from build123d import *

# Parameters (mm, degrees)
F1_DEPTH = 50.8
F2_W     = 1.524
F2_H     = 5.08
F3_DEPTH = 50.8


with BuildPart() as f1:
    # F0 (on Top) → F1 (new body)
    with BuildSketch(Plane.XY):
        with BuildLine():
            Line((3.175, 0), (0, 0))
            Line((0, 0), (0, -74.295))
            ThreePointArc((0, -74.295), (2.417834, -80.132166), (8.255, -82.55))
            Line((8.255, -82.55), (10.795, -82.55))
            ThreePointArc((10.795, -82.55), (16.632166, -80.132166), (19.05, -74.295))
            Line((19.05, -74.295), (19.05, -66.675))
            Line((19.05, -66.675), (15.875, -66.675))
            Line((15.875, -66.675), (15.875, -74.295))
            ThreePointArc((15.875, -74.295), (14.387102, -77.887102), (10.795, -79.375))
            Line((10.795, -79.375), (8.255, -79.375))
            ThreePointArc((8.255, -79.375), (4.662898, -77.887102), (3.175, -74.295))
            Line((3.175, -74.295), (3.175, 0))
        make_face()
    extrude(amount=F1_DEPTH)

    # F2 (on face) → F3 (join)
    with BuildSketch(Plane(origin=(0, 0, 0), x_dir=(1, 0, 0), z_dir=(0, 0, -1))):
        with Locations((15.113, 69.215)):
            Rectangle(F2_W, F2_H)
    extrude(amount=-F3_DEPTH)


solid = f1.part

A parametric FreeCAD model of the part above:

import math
import FreeCAD as App
import Part
import Sketcher

V = App.Vector
Q = App.Units.Quantity

doc = App.newDocument("Part")
body = doc.addObject("PartDesign::Body", "Body")

# Sketch on XY plane
sketch1 = body.newObject("Sketcher::SketchObject", "Sketch")
sketch1.AttachmentSupport = (doc.getObject("XY_Plane"), [""])
sketch1.MapMode = "FlatFace"
sketch1.addGeometry([
    Part.LineSegment(V(3.175, 0, 0), V(0, 0, 0)),  # 0
    Part.LineSegment(V(0, 0, 0), V(0, -74.295, 0)),  # 1
    Part.ArcOfCircle(Part.Circle(V(8.255002, -74.294998, 0), V(0, 0, 1), 8.255002), math.radians(-179.999989), math.radians(-90.000011)),  # 2
    Part.LineSegment(V(8.255, -82.55, 0), V(10.795, -82.55, 0)),  # 3
    Part.ArcOfCircle(Part.Circle(V(10.794998, -74.294998, 0), V(0, 0, 1), 8.255002), math.radians(-89.999989), math.radians(-0.000011)),  # 4
    Part.LineSegment(V(19.05, -74.295, 0), V(19.05, -66.675, 0)),  # 5
    Part.LineSegment(V(19.05, -66.675, 0), V(15.875, -66.675, 0)),  # 6
    Part.LineSegment(V(15.875, -66.675, 0), V(15.875, -74.295, 0)),  # 7
    Part.ArcOfCircle(Part.Circle(V(10.794998, -74.294998, 0), V(0, 0, 1), 5.080002), math.radians(-89.999983), math.radians(-0.000017)),  # 8
    Part.LineSegment(V(10.795, -79.375, 0), V(8.255, -79.375, 0)),  # 9
    Part.ArcOfCircle(Part.Circle(V(8.255002, -74.294998, 0), V(0, 0, 1), 5.080002), math.radians(-179.999983), math.radians(-90.000017)),  # 10
    Part.LineSegment(V(3.175, -74.295, 0), V(3.175, 0, 0)),  # 11
], False)
sketch1.addConstraint([
    Sketcher.Constraint("Coincident", 0, 2, 1, 1),
    Sketcher.Constraint("Tangent", 1, 2, 2, 1),
    Sketcher.Constraint("Tangent", 2, 2, 3, 1),
    Sketcher.Constraint("Tangent", 3, 2, 4, 1),
    Sketcher.Constraint("Tangent", 4, 2, 5, 1),
    Sketcher.Constraint("Coincident", 5, 2, 6, 1),
    Sketcher.Constraint("Coincident", 6, 2, 7, 1),
    Sketcher.Constraint("Tangent", 7, 2, 8, 2),
    Sketcher.Constraint("Tangent", 8, 1, 9, 1),
    Sketcher.Constraint("Tangent", 9, 2, 10, 2),
    Sketcher.Constraint("Tangent", 10, 1, 11, 1),
    Sketcher.Constraint("Coincident", 11, 2, 0, 1),
    Sketcher.Constraint("Horizontal", 0),
    Sketcher.Constraint("Vertical", 1),
    Sketcher.Constraint("Horizontal", 3),
    Sketcher.Constraint("Vertical", 5),
    Sketcher.Constraint("Horizontal", 6),
    Sketcher.Constraint("Vertical", 7),
    Sketcher.Constraint("Horizontal", 9),
    Sketcher.Constraint("Vertical", 11),
    Sketcher.Constraint("Coincident", 0, 2, -1, 1),
    Sketcher.Constraint("Coincident", 8, 3, 4, 3),
    Sketcher.Constraint("Coincident", 10, 3, 2, 3),
    Sketcher.Constraint("Equal", 2, 4),
    Sketcher.Constraint("Radius", 8, Q("0.2000001 in")),
    Sketcher.Constraint("DistanceX", 3, 1, 3, 2, Q("0.1 in")),
    Sketcher.Constraint("DistanceY", 5, 1, 5, 2, Q("0.3 in")),
    Sketcher.Constraint("Radius", 2, Q("0.3250001 in")),
    Sketcher.Constraint("DistanceY", 1, 2, 1, 1, Q("2.925 in")),
])
pad1 = body.newObject("PartDesign::Pad", "Pad")
pad1.Profile = sketch1
pad1.Length = Q("2 in")

# Sketch on XY plane
sketch2 = body.newObject("Sketcher::SketchObject", "Sketch001")
sketch2.AttachmentSupport = (doc.getObject("XY_Plane"), [""])
sketch2.MapMode = "FlatFace"
sketch2.addGeometry([
    Part.LineSegment(V(14.351, -71.755, 0), V(14.351, -66.675, 0)),
    Part.LineSegment(V(14.351, -66.675, 0), V(15.875, -66.675, 0)),
    Part.LineSegment(V(15.875, -66.675, 0), V(15.875, -71.755, 0)),
    Part.LineSegment(V(15.875, -71.755, 0), V(14.351, -71.755, 0)),
], False)
sketch2.addConstraint([
    Sketcher.Constraint("Coincident", 0, 2, 1, 1),
    Sketcher.Constraint("Coincident", 1, 2, 2, 1),
    Sketcher.Constraint("Coincident", 2, 2, 3, 1),
    Sketcher.Constraint("Coincident", 3, 2, 0, 1),
    Sketcher.Constraint("Vertical", 0),
    Sketcher.Constraint("Horizontal", 1),
    Sketcher.Constraint("Vertical", 2),
    Sketcher.Constraint("Horizontal", 3),
    Sketcher.Constraint("DistanceY", 0, 1, 0, 2, Q("0.2 in")),
    Sketcher.Constraint("DistanceX", 1, 1, 1, 2, Q("0.06 in")),
    Sketcher.Constraint("DistanceX", -1, 1, 0, 2, Q("0.565 in")),
    Sketcher.Constraint("DistanceY", 0, 2, -1, 1, Q("2.625 in")),
])
pad2 = body.newObject("PartDesign::Pad", "Pad001")
pad2.Profile = sketch2
pad2.Length = Q("2 in")

doc.recompute()
